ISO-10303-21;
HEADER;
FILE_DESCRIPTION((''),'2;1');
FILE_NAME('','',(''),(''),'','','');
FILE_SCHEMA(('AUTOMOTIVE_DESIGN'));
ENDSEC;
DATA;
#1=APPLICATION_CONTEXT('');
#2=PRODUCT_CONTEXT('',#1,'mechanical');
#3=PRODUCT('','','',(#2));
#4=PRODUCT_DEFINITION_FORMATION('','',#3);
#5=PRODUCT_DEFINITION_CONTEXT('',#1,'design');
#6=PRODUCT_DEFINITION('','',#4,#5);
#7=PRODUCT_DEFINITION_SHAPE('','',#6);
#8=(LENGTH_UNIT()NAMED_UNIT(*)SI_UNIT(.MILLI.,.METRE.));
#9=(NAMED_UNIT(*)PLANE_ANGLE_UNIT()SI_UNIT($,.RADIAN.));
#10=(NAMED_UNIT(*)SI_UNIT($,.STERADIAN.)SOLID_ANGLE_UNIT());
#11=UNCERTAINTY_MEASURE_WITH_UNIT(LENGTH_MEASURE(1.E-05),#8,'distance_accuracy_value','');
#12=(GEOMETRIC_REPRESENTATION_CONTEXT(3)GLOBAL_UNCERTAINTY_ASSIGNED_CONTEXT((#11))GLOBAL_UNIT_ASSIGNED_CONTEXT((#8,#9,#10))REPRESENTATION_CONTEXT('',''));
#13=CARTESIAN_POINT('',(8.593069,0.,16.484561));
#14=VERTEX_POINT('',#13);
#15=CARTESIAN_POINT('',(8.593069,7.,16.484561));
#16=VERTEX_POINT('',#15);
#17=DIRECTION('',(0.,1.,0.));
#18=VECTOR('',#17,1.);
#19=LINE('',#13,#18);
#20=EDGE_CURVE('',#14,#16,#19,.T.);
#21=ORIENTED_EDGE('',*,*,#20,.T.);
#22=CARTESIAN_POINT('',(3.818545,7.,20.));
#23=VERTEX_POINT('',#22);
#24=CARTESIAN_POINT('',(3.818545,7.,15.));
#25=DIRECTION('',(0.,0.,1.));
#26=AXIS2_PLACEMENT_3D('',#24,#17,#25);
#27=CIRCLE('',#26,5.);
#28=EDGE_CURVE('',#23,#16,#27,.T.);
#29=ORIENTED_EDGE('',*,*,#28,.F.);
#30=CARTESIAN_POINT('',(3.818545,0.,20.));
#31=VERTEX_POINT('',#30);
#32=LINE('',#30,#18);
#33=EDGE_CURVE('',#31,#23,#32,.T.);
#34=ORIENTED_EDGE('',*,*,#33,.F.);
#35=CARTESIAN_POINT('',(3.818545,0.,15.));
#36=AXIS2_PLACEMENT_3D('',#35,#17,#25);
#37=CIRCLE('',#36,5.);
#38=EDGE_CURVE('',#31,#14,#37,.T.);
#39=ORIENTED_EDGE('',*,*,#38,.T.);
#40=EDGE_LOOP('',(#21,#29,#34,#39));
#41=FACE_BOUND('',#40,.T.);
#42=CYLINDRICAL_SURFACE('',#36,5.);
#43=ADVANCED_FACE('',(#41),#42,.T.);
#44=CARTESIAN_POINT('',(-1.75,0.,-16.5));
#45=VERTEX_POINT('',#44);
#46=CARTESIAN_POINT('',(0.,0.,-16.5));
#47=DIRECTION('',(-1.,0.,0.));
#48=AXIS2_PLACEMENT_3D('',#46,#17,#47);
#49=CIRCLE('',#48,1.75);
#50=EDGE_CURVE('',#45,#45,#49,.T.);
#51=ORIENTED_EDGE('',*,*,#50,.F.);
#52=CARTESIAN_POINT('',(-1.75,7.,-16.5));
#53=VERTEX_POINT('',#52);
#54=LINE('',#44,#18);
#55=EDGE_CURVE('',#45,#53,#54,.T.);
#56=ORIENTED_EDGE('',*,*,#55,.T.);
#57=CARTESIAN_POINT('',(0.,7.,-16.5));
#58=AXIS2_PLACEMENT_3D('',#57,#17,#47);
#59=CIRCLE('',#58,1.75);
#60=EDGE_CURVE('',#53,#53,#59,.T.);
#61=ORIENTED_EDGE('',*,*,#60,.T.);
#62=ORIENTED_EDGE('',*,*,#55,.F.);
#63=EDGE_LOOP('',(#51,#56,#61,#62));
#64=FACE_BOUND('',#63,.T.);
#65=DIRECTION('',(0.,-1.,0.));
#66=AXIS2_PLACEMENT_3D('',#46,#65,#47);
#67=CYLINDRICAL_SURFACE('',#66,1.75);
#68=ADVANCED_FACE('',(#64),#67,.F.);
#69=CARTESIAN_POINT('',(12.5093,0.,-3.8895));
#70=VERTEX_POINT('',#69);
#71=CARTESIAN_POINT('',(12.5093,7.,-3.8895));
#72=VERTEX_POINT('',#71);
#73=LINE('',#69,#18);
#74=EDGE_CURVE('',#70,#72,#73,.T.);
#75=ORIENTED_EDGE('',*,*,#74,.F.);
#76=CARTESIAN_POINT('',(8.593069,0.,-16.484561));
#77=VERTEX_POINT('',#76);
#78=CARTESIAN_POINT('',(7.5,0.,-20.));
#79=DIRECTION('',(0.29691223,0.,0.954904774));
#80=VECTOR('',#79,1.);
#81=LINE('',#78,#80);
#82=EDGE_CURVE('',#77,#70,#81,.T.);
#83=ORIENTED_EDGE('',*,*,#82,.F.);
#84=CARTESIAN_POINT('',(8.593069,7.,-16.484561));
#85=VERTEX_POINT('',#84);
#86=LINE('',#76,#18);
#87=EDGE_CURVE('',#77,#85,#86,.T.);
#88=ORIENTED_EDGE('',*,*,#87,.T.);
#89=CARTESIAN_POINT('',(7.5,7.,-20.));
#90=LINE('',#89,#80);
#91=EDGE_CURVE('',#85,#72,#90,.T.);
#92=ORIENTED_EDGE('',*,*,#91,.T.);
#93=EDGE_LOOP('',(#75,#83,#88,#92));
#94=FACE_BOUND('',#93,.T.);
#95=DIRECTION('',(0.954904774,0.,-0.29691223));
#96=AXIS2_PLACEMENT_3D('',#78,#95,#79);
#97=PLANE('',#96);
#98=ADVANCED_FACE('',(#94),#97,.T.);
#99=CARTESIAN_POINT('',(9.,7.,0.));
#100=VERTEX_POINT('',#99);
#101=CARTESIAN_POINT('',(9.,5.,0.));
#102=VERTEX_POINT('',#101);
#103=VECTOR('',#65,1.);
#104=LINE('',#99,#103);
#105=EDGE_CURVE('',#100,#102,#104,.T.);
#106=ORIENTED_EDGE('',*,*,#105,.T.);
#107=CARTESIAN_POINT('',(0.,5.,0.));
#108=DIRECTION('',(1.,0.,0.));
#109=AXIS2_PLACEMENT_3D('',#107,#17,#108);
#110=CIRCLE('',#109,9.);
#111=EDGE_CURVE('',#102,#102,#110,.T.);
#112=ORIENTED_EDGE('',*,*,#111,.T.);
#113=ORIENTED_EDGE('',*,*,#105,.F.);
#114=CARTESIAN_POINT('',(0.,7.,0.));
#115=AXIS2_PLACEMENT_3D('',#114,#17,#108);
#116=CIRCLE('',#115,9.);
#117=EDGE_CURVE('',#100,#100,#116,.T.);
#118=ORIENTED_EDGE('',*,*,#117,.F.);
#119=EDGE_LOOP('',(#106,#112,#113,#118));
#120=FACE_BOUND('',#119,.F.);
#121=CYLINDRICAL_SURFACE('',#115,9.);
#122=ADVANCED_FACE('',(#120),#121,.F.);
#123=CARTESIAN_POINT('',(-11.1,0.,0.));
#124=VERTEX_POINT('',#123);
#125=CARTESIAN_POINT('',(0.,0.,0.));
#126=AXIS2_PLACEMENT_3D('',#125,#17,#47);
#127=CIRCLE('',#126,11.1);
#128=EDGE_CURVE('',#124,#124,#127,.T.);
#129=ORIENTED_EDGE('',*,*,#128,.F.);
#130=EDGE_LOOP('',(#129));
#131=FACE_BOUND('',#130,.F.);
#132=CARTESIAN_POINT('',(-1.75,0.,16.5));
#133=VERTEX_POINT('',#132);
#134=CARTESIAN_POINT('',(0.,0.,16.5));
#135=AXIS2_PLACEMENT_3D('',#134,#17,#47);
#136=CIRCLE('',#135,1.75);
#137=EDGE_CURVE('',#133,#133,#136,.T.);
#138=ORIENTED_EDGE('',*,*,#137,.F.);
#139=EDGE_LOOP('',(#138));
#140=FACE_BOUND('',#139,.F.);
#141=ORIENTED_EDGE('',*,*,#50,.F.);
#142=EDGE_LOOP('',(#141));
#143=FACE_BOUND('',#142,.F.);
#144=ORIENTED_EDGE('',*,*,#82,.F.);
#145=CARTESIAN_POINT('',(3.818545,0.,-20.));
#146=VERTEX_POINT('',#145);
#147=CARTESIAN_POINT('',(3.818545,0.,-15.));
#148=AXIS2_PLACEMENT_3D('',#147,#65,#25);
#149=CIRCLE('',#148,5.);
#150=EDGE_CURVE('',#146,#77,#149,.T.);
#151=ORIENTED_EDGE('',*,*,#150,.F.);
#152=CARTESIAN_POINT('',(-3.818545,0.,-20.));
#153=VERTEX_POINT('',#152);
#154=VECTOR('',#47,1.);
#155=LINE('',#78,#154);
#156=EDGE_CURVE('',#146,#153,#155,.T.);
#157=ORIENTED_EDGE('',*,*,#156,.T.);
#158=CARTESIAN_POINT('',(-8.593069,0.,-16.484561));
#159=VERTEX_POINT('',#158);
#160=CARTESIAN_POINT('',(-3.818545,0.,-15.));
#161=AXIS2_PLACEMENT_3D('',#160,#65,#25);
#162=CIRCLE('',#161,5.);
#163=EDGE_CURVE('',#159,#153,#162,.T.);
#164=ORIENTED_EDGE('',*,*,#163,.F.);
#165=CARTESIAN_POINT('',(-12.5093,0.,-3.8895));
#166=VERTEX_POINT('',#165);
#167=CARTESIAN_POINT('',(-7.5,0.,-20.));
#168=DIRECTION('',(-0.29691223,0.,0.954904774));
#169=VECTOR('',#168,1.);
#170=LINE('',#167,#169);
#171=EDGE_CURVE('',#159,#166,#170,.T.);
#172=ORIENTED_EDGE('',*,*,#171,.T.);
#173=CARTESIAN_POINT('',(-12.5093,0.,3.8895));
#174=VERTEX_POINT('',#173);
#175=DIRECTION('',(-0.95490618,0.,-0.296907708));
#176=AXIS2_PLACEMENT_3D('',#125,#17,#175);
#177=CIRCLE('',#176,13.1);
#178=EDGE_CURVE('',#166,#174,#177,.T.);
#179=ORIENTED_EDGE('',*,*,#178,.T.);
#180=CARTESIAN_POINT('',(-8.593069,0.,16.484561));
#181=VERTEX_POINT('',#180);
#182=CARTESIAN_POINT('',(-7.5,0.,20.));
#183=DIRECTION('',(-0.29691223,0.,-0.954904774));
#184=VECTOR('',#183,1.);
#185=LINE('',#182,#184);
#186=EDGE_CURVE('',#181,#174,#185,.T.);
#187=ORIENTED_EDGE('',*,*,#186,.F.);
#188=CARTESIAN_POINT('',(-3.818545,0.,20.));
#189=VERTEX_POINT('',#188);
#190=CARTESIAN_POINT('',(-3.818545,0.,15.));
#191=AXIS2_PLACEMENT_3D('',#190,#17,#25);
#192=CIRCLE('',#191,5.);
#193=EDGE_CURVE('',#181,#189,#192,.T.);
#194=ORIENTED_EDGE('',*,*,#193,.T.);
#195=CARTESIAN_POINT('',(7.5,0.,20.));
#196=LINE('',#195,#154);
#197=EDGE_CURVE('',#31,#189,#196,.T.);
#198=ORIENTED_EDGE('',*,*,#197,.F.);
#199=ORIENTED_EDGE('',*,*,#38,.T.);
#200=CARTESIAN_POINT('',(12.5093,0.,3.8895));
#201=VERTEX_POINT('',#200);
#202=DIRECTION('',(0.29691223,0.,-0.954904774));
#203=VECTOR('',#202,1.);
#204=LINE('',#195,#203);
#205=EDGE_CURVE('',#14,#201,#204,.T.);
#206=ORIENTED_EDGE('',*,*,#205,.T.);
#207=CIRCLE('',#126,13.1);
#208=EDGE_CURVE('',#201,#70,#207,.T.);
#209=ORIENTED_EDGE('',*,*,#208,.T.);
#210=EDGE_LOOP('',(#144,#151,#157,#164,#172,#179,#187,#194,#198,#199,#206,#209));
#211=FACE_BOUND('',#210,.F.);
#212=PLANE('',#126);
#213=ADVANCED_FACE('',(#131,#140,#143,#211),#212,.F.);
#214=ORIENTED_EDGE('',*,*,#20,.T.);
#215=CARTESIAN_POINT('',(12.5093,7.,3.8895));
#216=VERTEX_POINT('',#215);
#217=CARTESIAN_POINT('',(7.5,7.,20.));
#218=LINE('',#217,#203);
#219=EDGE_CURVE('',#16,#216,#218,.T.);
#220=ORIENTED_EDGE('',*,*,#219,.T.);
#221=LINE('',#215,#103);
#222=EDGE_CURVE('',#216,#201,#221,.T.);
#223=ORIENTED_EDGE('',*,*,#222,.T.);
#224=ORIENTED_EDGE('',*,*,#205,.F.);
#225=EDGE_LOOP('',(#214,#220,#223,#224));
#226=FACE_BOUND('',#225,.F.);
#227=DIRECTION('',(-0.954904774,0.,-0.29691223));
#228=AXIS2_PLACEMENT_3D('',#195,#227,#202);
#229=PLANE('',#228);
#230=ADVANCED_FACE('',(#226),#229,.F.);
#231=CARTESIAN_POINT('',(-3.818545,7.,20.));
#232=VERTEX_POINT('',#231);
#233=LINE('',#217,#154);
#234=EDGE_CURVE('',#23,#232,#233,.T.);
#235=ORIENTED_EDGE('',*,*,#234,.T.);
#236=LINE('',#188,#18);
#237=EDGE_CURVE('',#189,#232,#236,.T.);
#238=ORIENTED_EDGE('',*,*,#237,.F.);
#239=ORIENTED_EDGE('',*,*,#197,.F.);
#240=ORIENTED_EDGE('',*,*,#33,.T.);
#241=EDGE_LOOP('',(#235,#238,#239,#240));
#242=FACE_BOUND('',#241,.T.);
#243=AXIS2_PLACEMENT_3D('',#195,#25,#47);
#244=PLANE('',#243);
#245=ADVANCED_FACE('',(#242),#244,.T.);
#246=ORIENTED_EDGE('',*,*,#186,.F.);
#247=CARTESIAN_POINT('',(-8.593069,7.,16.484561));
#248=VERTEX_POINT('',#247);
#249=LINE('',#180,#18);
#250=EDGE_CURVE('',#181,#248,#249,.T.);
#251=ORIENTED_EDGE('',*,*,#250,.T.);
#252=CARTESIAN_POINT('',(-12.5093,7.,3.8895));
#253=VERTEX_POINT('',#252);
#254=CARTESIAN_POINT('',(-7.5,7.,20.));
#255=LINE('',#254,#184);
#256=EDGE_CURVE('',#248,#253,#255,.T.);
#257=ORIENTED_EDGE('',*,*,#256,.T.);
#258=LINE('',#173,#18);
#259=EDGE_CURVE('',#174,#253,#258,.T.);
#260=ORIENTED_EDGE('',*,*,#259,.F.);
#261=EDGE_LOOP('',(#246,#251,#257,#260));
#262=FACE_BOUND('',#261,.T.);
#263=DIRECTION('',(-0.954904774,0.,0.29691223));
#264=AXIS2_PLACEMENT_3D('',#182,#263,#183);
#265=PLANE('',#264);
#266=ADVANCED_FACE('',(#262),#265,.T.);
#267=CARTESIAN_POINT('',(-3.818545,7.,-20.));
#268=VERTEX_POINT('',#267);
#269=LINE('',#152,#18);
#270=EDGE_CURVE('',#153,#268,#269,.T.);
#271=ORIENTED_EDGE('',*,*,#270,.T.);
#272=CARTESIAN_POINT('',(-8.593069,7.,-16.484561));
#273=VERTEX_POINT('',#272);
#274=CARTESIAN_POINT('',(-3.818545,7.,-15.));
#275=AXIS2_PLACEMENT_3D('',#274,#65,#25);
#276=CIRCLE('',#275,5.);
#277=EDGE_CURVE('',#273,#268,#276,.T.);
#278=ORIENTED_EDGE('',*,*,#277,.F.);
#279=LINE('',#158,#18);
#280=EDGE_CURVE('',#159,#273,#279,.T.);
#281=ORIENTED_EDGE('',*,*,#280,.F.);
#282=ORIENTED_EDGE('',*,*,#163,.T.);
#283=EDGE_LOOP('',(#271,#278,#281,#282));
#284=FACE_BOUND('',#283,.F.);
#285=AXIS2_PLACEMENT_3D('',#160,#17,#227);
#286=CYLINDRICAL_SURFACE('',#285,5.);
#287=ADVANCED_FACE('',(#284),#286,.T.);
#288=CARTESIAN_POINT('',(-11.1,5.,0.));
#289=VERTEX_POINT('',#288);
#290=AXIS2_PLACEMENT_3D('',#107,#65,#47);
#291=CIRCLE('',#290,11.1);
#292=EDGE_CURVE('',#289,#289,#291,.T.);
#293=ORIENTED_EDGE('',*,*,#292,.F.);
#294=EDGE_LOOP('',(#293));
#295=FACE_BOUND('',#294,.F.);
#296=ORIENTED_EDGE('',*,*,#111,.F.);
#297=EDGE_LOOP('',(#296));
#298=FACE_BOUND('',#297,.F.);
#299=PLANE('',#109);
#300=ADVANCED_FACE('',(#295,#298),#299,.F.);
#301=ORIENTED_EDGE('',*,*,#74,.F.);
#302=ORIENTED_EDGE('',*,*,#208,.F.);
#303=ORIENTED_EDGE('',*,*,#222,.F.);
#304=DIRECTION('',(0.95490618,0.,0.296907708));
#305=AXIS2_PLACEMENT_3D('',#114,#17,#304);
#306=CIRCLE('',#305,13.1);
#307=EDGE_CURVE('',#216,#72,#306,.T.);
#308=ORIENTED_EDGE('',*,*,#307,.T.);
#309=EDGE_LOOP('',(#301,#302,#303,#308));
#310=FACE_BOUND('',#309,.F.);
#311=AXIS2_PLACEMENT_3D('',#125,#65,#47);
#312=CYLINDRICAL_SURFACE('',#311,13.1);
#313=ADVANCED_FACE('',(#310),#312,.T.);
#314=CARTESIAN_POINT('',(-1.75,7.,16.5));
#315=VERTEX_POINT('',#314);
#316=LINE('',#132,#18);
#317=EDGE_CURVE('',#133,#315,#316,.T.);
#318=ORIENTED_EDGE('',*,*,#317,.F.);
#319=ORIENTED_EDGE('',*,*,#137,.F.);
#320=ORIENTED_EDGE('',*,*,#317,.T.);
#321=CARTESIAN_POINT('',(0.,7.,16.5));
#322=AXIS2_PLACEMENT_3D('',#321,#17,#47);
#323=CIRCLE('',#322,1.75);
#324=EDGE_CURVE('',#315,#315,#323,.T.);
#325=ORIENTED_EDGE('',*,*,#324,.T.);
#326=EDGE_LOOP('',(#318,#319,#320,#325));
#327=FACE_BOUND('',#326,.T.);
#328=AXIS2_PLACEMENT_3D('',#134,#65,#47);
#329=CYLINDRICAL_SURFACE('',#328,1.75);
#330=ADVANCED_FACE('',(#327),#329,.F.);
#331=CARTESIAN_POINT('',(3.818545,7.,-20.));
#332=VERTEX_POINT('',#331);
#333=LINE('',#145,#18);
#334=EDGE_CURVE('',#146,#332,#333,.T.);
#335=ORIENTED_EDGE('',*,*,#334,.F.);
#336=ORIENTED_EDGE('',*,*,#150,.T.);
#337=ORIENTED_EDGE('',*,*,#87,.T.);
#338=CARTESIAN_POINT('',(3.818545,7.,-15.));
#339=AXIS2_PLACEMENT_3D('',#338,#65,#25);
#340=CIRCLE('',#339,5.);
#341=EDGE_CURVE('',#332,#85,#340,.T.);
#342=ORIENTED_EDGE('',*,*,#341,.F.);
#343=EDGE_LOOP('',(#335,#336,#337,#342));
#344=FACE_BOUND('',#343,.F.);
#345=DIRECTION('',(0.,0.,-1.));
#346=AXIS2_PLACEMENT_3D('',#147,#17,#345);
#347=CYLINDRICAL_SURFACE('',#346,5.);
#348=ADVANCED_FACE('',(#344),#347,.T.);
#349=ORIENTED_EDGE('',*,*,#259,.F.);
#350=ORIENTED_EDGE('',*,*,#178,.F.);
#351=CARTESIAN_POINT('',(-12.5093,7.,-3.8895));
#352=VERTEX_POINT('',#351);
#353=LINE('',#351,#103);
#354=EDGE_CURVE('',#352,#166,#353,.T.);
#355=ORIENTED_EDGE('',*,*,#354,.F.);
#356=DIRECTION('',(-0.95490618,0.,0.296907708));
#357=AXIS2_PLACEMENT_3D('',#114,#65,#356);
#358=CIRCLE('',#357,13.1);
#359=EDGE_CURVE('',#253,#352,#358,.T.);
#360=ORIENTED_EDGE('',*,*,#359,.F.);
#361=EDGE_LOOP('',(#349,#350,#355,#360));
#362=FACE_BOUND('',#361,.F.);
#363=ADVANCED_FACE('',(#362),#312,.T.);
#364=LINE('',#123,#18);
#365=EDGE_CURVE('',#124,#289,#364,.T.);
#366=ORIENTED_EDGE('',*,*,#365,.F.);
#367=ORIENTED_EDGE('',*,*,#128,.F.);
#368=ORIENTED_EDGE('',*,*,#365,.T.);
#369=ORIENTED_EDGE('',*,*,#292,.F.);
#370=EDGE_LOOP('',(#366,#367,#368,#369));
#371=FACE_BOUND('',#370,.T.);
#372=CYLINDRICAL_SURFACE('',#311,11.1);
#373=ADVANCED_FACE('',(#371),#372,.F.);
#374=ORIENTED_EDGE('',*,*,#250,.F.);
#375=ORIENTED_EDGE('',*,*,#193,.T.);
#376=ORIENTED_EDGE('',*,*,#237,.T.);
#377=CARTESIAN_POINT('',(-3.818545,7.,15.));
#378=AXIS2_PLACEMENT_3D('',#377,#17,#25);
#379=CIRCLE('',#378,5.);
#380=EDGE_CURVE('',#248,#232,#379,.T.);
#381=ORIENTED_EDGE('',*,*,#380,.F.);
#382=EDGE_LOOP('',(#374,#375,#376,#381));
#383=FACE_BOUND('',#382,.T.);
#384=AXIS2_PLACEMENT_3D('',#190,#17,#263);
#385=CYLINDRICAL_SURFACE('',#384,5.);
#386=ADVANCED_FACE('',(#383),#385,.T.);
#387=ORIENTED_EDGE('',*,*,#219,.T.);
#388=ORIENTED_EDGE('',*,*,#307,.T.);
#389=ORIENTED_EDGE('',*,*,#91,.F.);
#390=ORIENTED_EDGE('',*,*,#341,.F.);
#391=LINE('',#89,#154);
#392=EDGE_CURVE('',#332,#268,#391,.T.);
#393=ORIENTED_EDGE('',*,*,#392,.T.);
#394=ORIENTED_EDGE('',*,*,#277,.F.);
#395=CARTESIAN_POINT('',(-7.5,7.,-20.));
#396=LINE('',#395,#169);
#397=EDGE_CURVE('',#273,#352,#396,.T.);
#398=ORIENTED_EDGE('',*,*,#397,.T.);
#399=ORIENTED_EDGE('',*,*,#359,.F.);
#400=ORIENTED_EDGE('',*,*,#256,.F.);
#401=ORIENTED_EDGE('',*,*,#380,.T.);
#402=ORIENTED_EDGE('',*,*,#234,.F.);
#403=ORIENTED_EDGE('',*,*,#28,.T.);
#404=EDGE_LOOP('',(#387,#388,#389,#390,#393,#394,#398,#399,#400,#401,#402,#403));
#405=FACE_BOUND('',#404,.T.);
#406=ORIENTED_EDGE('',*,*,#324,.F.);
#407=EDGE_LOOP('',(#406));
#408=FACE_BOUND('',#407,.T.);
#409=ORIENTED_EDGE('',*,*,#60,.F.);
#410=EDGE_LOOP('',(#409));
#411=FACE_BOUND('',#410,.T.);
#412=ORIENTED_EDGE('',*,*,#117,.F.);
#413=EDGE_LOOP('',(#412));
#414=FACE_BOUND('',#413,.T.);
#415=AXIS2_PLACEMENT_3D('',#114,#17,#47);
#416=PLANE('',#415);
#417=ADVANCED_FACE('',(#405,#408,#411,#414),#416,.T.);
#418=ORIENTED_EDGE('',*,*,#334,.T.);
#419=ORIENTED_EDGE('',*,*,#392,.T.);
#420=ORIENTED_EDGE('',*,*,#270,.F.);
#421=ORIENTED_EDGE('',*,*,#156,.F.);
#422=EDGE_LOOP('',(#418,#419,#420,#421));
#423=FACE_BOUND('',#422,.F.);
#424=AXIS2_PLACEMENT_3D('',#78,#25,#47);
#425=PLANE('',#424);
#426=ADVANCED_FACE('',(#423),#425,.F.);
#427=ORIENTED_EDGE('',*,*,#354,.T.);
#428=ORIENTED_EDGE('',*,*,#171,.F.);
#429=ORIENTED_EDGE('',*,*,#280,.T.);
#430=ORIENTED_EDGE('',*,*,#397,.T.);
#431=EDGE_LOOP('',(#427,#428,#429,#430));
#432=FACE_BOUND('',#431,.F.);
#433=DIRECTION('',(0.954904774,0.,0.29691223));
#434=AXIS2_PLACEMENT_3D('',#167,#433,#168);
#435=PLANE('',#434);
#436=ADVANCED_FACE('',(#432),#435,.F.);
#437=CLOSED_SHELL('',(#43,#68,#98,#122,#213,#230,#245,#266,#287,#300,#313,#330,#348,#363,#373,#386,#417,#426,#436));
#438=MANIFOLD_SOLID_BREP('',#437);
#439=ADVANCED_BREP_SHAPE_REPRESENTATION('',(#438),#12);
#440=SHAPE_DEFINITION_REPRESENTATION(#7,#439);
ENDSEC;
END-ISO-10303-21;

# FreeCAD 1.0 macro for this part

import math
import FreeCAD as App
import Part
import Sketcher
Q = App.Units.Quantity


def edges_at(feature, points):
    """Names of the edges that pass closest to the given points."""
    edges = feature.Shape.Edges
    near = lambda p: min(range(len(edges)), key=lambda i: edges[i].distToShape(Part.Vertex(*p))[0])
    return sorted({f"Edge{near(p) + 1}" for p in points})

doc = App.newDocument("Part")
body = doc.addObject("PartDesign::Body", "Body")

# Sketch on XZ plane
sketch1 = doc.addObject("Sketcher::SketchObject", "Sketch")
body.addObject(sketch1)
sketch1.AttachmentSupport = (doc.XZ_Plane, [""])
sketch1.MapMode = "FlatFace"
sketch1.addGeometry([
    Part.ArcOfCircle(Part.Circle(App.Vector(0, 0, 0), App.Vector(0, 0, 1), 13.1), math.radians(162.728033), math.radians(197.271967)),  # 0
    Part.LineSegment(App.Vector(-12.5093, 3.8895, 0), App.Vector(-7.5, 20, 0)),  # 1
    Part.LineSegment(App.Vector(-7.5, 20, 0), App.Vector(7.5, 20, 0)),  # 2
    Part.LineSegment(App.Vector(7.5, 20, 0), App.Vector(12.5093, 3.8895, 0)),  # 3
    Part.ArcOfCircle(Part.Circle(App.Vector(0, 0, 0), App.Vector(0, 0, 1), 13.1), math.radians(-17.271967), math.radians(17.271967)),  # 4
    Part.LineSegment(App.Vector(12.5093, -3.8895, 0), App.Vector(7.5, -20, 0)),  # 5
    Part.LineSegment(App.Vector(7.5, -20, 0), App.Vector(-7.5, -20, 0)),  # 6
    Part.LineSegment(App.Vector(-7.5, -20, 0), App.Vector(-12.5093, -3.8895, 0)),  # 7
    Part.Circle(App.Vector(0, 0, 0), App.Vector(0, 0, 1), 11.1),  # 8
    Part.Circle(App.Vector(0, -16.5, 0), App.Vector(0, 0, 1), 1.75),  # 9
    Part.Circle(App.Vector(0, 16.5, 0), App.Vector(0, 0, 1), 1.75),  # 10
], False)
sketch1.addConstraint([
    Sketcher.Constraint("Tangent", 0, 1, 1, 1),
    Sketcher.Constraint("Coincident", 1, 2, 2, 1),
    Sketcher.Constraint("Coincident", 2, 2, 3, 1),
    Sketcher.Constraint("Tangent", 3, 2, 4, 2),
    Sketcher.Constraint("Tangent", 4, 1, 5, 1),
    Sketcher.Constraint("Coincident", 5, 2, 6, 1),
    Sketcher.Constraint("Coincident", 6, 2, 7, 1),
    Sketcher.Constraint("Tangent", 7, 2, 0, 2),
    Sketcher.Constraint("Horizontal", 2),
    Sketcher.Constraint("Horizontal", 6),
    Sketcher.Constraint("Coincident", 0, 3, -1, 1),
    Sketcher.Constraint("Coincident", 4, 3, -1, 1),
    Sketcher.Constraint("Coincident", 8, 3, -1, 1),
    Sketcher.Constraint("Equal", 0, 4),
    Sketcher.Constraint("Equal", 9, 10),
    Sketcher.Constraint("Symmetric", 9, 3, 10, 3, -1, 1),
    Sketcher.Constraint("Symmetric", 1, 2, 5, 2, -1, 1),
    Sketcher.Constraint("PointOnObject", 9, 3, -2),
    Sketcher.Constraint("Parallel", 3, 7),
    Sketcher.Constraint("Horizontal", 0, 1, 3, 2),
    Sketcher.Constraint("Diameter", 8, Q("22.2 mm")),
    Sketcher.Constraint("Diameter", 9, Q("3.5 mm")),
    Sketcher.Constraint("DistanceX", 2, 1, 2, 2, Q("15 mm")),
    Sketcher.Constraint("DistanceY", -1, 1, 1, 2, Q("20 mm")),
    Sketcher.Constraint("DistanceY", 9, 3, -1, 1, Q("16.5 mm")),
    Sketcher.Constraint("Radius", 0, Q("13.1 mm")),
])
pad1 = doc.addObject("PartDesign::Pad", "Pad")
body.addObject(pad1)
pad1.Profile = sketch1
pad1.Length = 7
pad1.Reversed = True

# Sketch on XZ plane
sketch2 = doc.addObject("Sketcher::SketchObject", "Sketch001")
body.addObject(sketch2)
sketch2.AttachmentSupport = (doc.XZ_Plane, [""])
sketch2.MapMode = "FlatFace"
sketch2.AttachmentOffset = App.Placement(App.Vector(0, 0, -7), App.Rotation())
sketch2.addGeometry([
    Part.Circle(App.Vector(0, 0, 0), App.Vector(0, 0, 1), 13.1),
    Part.Circle(App.Vector(0, 0, 0), App.Vector(0, 0, 1), 9),
], False)
sketch2.addConstraint([
    Sketcher.Constraint("Coincident", 0, 3, -1, 1),
    Sketcher.Constraint("Coincident", 1, 3, -1, 1),
    Sketcher.Constraint("Diameter", 1, Q("18 mm")),
    Sketcher.Constraint("Diameter", 0, Q("26.2 mm")),
])
pad2 = doc.addObject("PartDesign::Pad", "Pad001")
body.addObject(pad2)
pad2.Profile = sketch2
pad2.Length = 2
doc.recompute()

fillet = doc.addObject("PartDesign::Fillet", "Fillet")
body.addObject(fillet)
fillet.Base = (pad2, edges_at(pad2, [
    (-7.5, 3.5, 20),
    (7.5, 3.5, 20),
    (7.5, 3.5, -20),
    (-7.5, 3.5, -20),
]))
fillet.Radius = 5

doc.recompute()
